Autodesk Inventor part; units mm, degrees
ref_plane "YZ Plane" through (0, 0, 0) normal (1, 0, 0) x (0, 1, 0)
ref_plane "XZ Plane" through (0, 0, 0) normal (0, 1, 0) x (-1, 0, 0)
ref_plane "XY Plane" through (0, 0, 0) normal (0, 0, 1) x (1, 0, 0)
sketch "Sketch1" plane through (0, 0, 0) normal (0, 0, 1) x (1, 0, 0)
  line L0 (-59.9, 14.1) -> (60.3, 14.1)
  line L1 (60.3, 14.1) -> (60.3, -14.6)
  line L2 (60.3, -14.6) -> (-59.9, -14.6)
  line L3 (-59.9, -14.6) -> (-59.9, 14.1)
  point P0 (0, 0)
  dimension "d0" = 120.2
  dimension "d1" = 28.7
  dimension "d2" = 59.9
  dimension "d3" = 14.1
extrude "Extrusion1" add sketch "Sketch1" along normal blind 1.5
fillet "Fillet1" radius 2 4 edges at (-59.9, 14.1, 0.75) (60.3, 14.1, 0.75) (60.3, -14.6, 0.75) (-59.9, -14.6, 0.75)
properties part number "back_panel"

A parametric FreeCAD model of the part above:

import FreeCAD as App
import Part
import Sketcher
Q = App.Units.Quantity


def edges_at(feature, points):
    """Names of the edges that pass closest to the given points."""
    edges = feature.Shape.Edges
    near = lambda p: min(range(len(edges)), key=lambda i: edges[i].distToShape(Part.Vertex(*p))[0])
    return sorted({f"Edge{near(p) + 1}" for p in points})


def add_polygon(sketch, points):
    """Adds a closed chain of lines whose ends are joined by coincident constraints."""
    first, n = sketch.GeometryCount, len(points)
    for a, b in zip(points, points[1:] + points[:1]):
        sketch.addGeometry(Part.LineSegment(App.Vector(*a, 0), App.Vector(*b, 0)), False)
    for i in range(n):
        sketch.addConstraint(Sketcher.Constraint("Coincident", first + i, 2, first + (i + 1) % n, 1))

doc = App.newDocument("Part")
body = doc.addObject("PartDesign::Body", "Body")

# Sketch on XY plane
sketch1 = body.newObject("Sketcher::SketchObject", "Sketch")
sketch1.AttachmentSupport = (doc.getObject("XY_Plane"), [""])
sketch1.MapMode = "FlatFace"
add_polygon(sketch1, [(60, 14), (-60, 14), (-60, -15), (60, -15)])  # lines 0-3
sketch1.addConstraint([
    Sketcher.Constraint("Horizontal", 0),
    Sketcher.Constraint("Vertical", 1),
    Sketcher.Constraint("Horizontal", 2),
    Sketcher.Constraint("Vertical", 3),
    Sketcher.Constraint("DistanceX", 0, 2, 0, 1, Q("120.2 mm")),
    Sketcher.Constraint("DistanceY", 1, 2, 1, 1, Q("28.7 mm")),
    Sketcher.Constraint("DistanceX", 0, 2, -1, 1, Q("59.9 mm")),
    Sketcher.Constraint("DistanceY", -1, 1, 0, 2, Q("14.1 mm")),
])
pad1 = body.newObject("PartDesign::Pad", "Pad")
pad1.Profile = sketch1
pad1.Length = 1.5
doc.recompute()

fillet = body.newObject("PartDesign::Fillet", "Fillet")
fillet.Base = (pad1, edges_at(pad1, [
    (-59.9, 14.1, 0.75),
    (60.3, 14.1, 0.75),
    (60.3, -14.6, 0.75),
    (-59.9, -14.6, 0.75),
]))
fillet.Radius = 2

doc.recompute()
